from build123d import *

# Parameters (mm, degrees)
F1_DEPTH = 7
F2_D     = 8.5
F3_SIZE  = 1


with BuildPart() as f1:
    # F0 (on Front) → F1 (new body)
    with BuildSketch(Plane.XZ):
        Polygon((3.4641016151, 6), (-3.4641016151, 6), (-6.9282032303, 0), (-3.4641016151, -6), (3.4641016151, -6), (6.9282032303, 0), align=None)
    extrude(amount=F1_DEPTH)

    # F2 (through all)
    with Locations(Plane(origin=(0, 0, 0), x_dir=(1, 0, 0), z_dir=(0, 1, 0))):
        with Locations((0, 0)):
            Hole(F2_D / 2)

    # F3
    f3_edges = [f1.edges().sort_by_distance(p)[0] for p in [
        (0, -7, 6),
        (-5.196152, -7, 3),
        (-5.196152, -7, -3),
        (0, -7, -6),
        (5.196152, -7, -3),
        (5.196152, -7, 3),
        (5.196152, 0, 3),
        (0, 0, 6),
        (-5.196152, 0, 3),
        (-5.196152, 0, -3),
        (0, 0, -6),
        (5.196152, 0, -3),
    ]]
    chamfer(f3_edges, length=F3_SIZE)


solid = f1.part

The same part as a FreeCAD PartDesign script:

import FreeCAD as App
import Part
import Sketcher
Q = App.Units.Quantity


def edges_at(feature, points):
    """Names of the edges that pass closest to the given points."""
    edges = feature.Shape.Edges
    near = lambda p: min(range(len(edges)), key=lambda i: edges[i].distToShape(Part.Vertex(*p))[0])
    return sorted({f"Edge{near(p) + 1}" for p in points})

doc = App.newDocument("Part")
body = doc.addObject("PartDesign::Body", "Body")

sketch1 = body.newObject("Sketcher::SketchObject", "Sketch")
sketch1.AttachmentSupport = (doc.getObject("XZ_Plane"), [""])
sketch1.MapMode = "FlatFace"
sketch1.addGeometry([
    Part.LineSegment(App.Vector(3.464102, 6, 0), App.Vector(-3.464102, 6, 0)),
    Part.LineSegment(App.Vector(-3.464102, 6, 0), App.Vector(-6.928203, 0, 0)),
    Part.LineSegment(App.Vector(-6.928203, 0, 0), App.Vector(-3.464102, -6, 0)),
    Part.LineSegment(App.Vector(-3.464102, -6, 0), App.Vector(3.464102, -6, 0)),
    Part.LineSegment(App.Vector(3.464102, -6, 0), App.Vector(6.928203, 0, 0)),
    Part.LineSegment(App.Vector(6.928203, 0, 0), App.Vector(3.464102, 6, 0)),
], False)
sketch1.addConstraint([
    Sketcher.Constraint("Coincident", 0, 2, 1, 1),
    Sketcher.Constraint("Coincident", 1, 2, 2, 1),
    Sketcher.Constraint("Coincident", 2, 2, 3, 1),
    Sketcher.Constraint("Coincident", 3, 2, 4, 1),
    Sketcher.Constraint("Coincident", 4, 2, 5, 1),
    Sketcher.Constraint("Coincident", 5, 2, 0, 1),
    Sketcher.Constraint("Horizontal", 0),
    Sketcher.Constraint("Horizontal", 3),
    Sketcher.Constraint("Symmetric", 0, 2, 3, 2, -1, 1),
    Sketcher.Constraint("Symmetric", 1, 2, 4, 2, -1, 1),
    Sketcher.Constraint("PointOnObject", 1, 2, -1),
    Sketcher.Constraint("Parallel", 2, 5),
    Sketcher.Constraint("Vertical", 0, 2, 2, 2),
    Sketcher.Constraint("Angle", 1, Q("-120 deg")),
    Sketcher.Constraint("DistanceY", -1, 1, 0, 2, Q("6 mm")),
    Sketcher.Constraint("DistanceX", 0, 2, -1, 1, Q("3.464102 mm")),
])
pad1 = body.newObject("PartDesign::Pad", "Pad")
pad1.Profile = sketch1
pad1.Length = 7

sketch2 = body.newObject("Sketcher::SketchObject", "Sketch001")
sketch2.AttachmentSupport = (doc.getObject("XZ_Plane"), [""])
sketch2.MapMode = "FlatFace"
sketch2.addGeometry(Part.Circle(App.Vector(0, 0, 0), App.Vector(0, 0, 1), 4.25), False)
sketch2.addConstraint([
    Sketcher.Constraint("Coincident", 0, 3, -1, 1),
    Sketcher.Constraint("Diameter", 0, Q("8.5 mm")),
])
doc.recompute()
hole = body.newObject("PartDesign::Hole", "Hole")
hole.Profile = sketch2
hole.ThreadType = "None"
hole.Diameter = 8.5
hole.DepthType = "ThroughAll"
hole.Reversed = True
doc.recompute()

chamfer = body.newObject("PartDesign::Chamfer", "Chamfer")
chamfer.Base = (hole, edges_at(hole, [
    (0, -7, 6),
    (-5.196, -7, 3),
    (-5.196, -7, -3),
    (0, -7, -6),
    (5.196, -7, -3),
    (5.196, -7, 3),
    (5.196, 0, 3),
    (0, 0, 6),
    (-5.196, 0, 3),
    (-5.196, 0, -3),
    (0, 0, -6),
    (5.196, 0, -3),
]))
chamfer.Size = 1

doc.recompute()
